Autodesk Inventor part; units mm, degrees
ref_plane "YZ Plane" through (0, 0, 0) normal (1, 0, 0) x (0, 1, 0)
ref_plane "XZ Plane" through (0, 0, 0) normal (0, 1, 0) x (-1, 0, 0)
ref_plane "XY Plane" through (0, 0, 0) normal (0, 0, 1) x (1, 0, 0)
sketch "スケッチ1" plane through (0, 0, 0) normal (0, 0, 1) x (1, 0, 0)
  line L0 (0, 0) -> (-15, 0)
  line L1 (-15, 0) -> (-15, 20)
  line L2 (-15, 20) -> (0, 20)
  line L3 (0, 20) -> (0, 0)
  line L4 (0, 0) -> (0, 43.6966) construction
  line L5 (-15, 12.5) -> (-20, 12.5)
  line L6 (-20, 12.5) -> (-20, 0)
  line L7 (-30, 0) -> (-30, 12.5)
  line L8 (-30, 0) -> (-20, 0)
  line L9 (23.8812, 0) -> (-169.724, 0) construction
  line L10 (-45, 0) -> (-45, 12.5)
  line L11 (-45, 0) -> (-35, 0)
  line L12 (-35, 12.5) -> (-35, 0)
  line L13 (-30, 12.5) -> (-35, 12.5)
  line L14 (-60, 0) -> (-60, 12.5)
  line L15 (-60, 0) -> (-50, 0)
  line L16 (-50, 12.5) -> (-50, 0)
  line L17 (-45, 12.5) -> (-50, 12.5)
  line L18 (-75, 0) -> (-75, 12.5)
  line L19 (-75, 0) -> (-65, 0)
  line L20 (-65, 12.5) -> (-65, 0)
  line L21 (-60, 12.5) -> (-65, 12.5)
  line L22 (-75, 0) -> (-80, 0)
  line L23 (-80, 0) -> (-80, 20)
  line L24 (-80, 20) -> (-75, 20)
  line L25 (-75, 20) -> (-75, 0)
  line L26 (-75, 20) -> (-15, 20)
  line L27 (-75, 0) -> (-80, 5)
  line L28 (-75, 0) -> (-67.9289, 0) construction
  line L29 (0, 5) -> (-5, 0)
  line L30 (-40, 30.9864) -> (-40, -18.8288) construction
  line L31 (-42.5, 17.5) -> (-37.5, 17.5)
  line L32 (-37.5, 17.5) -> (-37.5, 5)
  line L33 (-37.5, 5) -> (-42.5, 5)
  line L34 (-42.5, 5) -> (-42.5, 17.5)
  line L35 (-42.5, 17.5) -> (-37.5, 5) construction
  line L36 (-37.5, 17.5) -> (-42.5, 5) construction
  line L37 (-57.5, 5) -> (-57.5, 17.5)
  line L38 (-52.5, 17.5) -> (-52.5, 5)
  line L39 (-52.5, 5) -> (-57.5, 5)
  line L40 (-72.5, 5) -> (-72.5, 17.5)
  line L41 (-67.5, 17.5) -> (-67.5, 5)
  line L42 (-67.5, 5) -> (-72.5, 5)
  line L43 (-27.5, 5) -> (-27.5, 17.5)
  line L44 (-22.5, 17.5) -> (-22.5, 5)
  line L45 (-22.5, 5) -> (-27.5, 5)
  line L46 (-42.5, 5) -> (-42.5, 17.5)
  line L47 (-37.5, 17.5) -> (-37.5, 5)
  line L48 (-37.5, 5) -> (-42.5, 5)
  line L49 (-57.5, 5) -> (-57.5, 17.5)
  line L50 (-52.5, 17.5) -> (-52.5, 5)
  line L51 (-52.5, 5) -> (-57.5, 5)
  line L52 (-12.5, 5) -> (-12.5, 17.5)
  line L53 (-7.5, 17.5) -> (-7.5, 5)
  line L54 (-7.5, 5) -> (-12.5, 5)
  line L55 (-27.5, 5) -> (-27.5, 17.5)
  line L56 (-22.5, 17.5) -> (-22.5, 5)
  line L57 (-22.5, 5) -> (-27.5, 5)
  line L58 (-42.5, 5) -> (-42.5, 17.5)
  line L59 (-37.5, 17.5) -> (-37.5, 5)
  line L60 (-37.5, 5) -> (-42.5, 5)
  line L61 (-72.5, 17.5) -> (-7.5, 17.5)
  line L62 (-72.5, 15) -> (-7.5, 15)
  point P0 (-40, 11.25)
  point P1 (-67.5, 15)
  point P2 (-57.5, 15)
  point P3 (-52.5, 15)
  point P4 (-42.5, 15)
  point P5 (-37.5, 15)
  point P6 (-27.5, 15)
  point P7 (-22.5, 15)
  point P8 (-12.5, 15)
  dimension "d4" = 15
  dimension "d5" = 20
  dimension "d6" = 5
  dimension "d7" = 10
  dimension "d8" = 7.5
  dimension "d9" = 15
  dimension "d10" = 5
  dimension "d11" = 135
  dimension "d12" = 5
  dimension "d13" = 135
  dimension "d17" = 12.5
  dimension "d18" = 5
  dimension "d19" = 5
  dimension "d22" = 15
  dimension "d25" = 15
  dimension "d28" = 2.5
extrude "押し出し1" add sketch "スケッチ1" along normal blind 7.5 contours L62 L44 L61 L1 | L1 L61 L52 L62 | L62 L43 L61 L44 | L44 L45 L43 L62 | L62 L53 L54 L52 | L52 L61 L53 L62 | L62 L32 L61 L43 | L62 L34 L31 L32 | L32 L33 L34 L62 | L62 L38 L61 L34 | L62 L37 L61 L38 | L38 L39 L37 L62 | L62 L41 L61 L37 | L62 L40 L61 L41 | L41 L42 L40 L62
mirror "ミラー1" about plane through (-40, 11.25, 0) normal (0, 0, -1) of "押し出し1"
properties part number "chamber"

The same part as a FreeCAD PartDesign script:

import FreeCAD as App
import Part
import Sketcher

V = App.Vector
Q = App.Units.Quantity

doc = App.newDocument("Part")
body = doc.addObject("PartDesign::Body", "Body")

# Sketch on XY plane
sketch1 = body.newObject("Sketcher::SketchObject", "Sketch")
sketch1.AttachmentSupport = (doc.getObject("XY_Plane"), [""])
sketch1.MapMode = "FlatFace"
sketch1.addGeometry([
    Part.LineSegment(V(-22, 15, 0), V(-12, 15, 0)),  # 0
    Part.LineSegment(V(-12, 15, 0), V(-12, 5, 0)),  # 1
    Part.LineSegment(V(-12, 5, 0), V(-8, 5, 0)),  # 2
    Part.LineSegment(V(-8, 5, 0), V(-8, 18, 0)),  # 3
    Part.LineSegment(V(-8, 18, 0), V(-72, 18, 0)),  # 4
    Part.LineSegment(V(-72, 18, 0), V(-72, 5, 0)),  # 5
    Part.LineSegment(V(-72, 5, 0), V(-68, 5, 0)),  # 6
    Part.LineSegment(V(-68, 5, 0), V(-68, 15, 0)),  # 7
    Part.LineSegment(V(-68, 15, 0), V(-58, 15, 0)),  # 8
    Part.LineSegment(V(-58, 15, 0), V(-58, 5, 0)),  # 9
    Part.LineSegment(V(-58, 5, 0), V(-52, 5, 0)),  # 10
    Part.LineSegment(V(-52, 5, 0), V(-52, 15, 0)),  # 11
    Part.LineSegment(V(-52, 15, 0), V(-42, 15, 0)),  # 12
    Part.LineSegment(V(-42, 15, 0), V(-42, 5, 0)),  # 13
    Part.LineSegment(V(-42, 5, 0), V(-38, 5, 0)),  # 14
    Part.LineSegment(V(-38, 5, 0), V(-38, 15, 0)),  # 15
    Part.LineSegment(V(-38, 15, 0), V(-28, 15, 0)),  # 16
    Part.LineSegment(V(-28, 15, 0), V(-28, 5, 0)),  # 17
    Part.LineSegment(V(-28, 5, 0), V(-22, 5, 0)),  # 18
    Part.LineSegment(V(-22, 5, 0), V(-22, 15, 0)),  # 19
], False)
sketch1.addConstraint([
    Sketcher.Constraint("Coincident", 0, 2, 1, 1),
    Sketcher.Constraint("Coincident", 1, 2, 2, 1),
    Sketcher.Constraint("Coincident", 2, 2, 3, 1),
    Sketcher.Constraint("Coincident", 3, 2, 4, 1),
    Sketcher.Constraint("Coincident", 4, 2, 5, 1),
    Sketcher.Constraint("Coincident", 5, 2, 6, 1),
    Sketcher.Constraint("Coincident", 6, 2, 7, 1),
    Sketcher.Constraint("Coincident", 7, 2, 8, 1),
    Sketcher.Constraint("Coincident", 8, 2, 9, 1),
    Sketcher.Constraint("Coincident", 9, 2, 10, 1),
    Sketcher.Constraint("Coincident", 10, 2, 11, 1),
    Sketcher.Constraint("Coincident", 11, 2, 12, 1),
    Sketcher.Constraint("Coincident", 12, 2, 13, 1),
    Sketcher.Constraint("Coincident", 13, 2, 14, 1),
    Sketcher.Constraint("Coincident", 14, 2, 15, 1),
    Sketcher.Constraint("Coincident", 15, 2, 16, 1),
    Sketcher.Constraint("Coincident", 16, 2, 17, 1),
    Sketcher.Constraint("Coincident", 17, 2, 18, 1),
    Sketcher.Constraint("Coincident", 18, 2, 19, 1),
    Sketcher.Constraint("Coincident", 19, 2, 0, 1),
    Sketcher.Constraint("Horizontal", 0),
    Sketcher.Constraint("Vertical", 1),
    Sketcher.Constraint("Horizontal", 2),
    Sketcher.Constraint("Vertical", 3),
    Sketcher.Constraint("Horizontal", 4),
    Sketcher.Constraint("Vertical", 5),
    Sketcher.Constraint("Horizontal", 6),
    Sketcher.Constraint("Vertical", 7),
    Sketcher.Constraint("Horizontal", 8),
    Sketcher.Constraint("Vertical", 9),
    Sketcher.Constraint("Horizontal", 10),
    Sketcher.Constraint("Vertical", 11),
    Sketcher.Constraint("Horizontal", 12),
    Sketcher.Constraint("Vertical", 13),
    Sketcher.Constraint("Horizontal", 14),
    Sketcher.Constraint("Vertical", 15),
    Sketcher.Constraint("Horizontal", 16),
    Sketcher.Constraint("Vertical", 17),
    Sketcher.Constraint("Horizontal", 18),
    Sketcher.Constraint("Vertical", 19),
    Sketcher.Constraint("Horizontal", 2, 2, 5, 2),
    Sketcher.Constraint("Horizontal", 0, 2, 7, 2),
    Sketcher.Constraint("Horizontal", 6, 2, 9, 2),
    Sketcher.Constraint("Horizontal", 8, 2, 11, 2),
    Sketcher.Constraint("Horizontal", 10, 2, 13, 2),
    Sketcher.Constraint("Horizontal", 12, 2, 15, 2),
    Sketcher.Constraint("Horizontal", 14, 2, 17, 2),
    Sketcher.Constraint("Equal", 2, 6),
    Sketcher.Constraint("Equal", 0, 8),
    Sketcher.Constraint("Equal", 6, 10),
    Sketcher.Constraint("Equal", 8, 12),
    Sketcher.Constraint("Equal", 10, 14),
    Sketcher.Constraint("Equal", 12, 16),
    Sketcher.Constraint("Equal", 14, 18),
    Sketcher.Constraint("Equal", 16, 1),
    Sketcher.Constraint("DistanceX", 0, 1, 0, 2, Q("10 mm")),
    Sketcher.Constraint("DistanceX", 2, 1, 2, 2, Q("5 mm")),
    Sketcher.Constraint("DistanceY", 3, 1, 3, 2, Q("12.5 mm")),
    Sketcher.Constraint("DistanceY", -1, 1, 0, 2, Q("15 mm")),
    Sketcher.Constraint("DistanceX", 0, 2, -1, 1, Q("12.5 mm")),
])
pad1 = body.newObject("PartDesign::Pad", "Pad")
pad1.Profile = sketch1
pad1.Length = 7.5
doc.recompute()

mirrored = body.newObject("PartDesign::Mirrored", "Mirrored")
mirrored.Originals = [pad1]
mirrored.MirrorPlane = (doc.getObject("XY_Plane"), [""])
body.Tip = mirrored

doc.recompute()
